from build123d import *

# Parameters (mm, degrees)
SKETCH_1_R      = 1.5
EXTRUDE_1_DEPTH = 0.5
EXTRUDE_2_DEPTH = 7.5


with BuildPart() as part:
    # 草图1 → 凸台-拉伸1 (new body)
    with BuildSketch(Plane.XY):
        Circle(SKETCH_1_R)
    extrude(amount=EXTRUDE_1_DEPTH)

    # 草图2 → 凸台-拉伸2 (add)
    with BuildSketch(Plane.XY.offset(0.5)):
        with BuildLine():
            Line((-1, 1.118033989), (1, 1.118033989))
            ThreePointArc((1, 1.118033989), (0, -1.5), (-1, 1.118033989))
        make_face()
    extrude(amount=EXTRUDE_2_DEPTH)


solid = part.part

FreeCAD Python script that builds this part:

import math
import FreeCAD as App
import Part
import Sketcher

V = App.Vector
Q = App.Units.Quantity

doc = App.newDocument("Part")
body = doc.addObject("PartDesign::Body", "Body")

# Sketch on XY plane
sketch1 = doc.addObject("Sketcher::SketchObject", "Sketch")
body.addObject(sketch1)
sketch1.AttachmentSupport = (doc.XY_Plane, [""])
sketch1.MapMode = "FlatFace"
sketch1.addGeometry(Part.Circle(V(0, 0, 0), V(0, 0, 1), 1.5), False)
sketch1.addConstraint([
    Sketcher.Constraint("Coincident", 0, 3, -1, 1),
    Sketcher.Constraint("Diameter", 0, Q("3 mm")),
])
pad1 = doc.addObject("PartDesign::Pad", "Pad")
body.addObject(pad1)
pad1.Profile = sketch1
pad1.Length = 0.5

# Sketch on XY plane
sketch2 = doc.addObject("Sketcher::SketchObject", "Sketch001")
body.addObject(sketch2)
sketch2.AttachmentSupport = (doc.XY_Plane, [""])
sketch2.MapMode = "FlatFace"
sketch2.AttachmentOffset = App.Placement(V(0, 0, 0.5), App.Rotation())
sketch2.addGeometry([
    Part.LineSegment(V(1, 1.118034, 0), V(-1, 1.118034, 0)),
    Part.ArcOfCircle(Part.Circle(V(0, 0, 0), V(0, 0, 1), 1.5), math.radians(131.810315), math.radians(408.189685)),
], False)
sketch2.addConstraint([
    Sketcher.Constraint("Coincident", 0, 1, 1, 2),
    Sketcher.Constraint("Coincident", 1, 1, 0, 2),
    Sketcher.Constraint("Horizontal", 0),
    Sketcher.Constraint("Coincident", 1, 3, -1, 1),
    Sketcher.Constraint("Radius", 1, Q("1.5 mm")),
    Sketcher.Constraint("DistanceX", 0, 2, 0, 1, Q("2 mm")),
])
pad2 = doc.addObject("PartDesign::Pad", "Pad001")
body.addObject(pad2)
pad2.Profile = sketch2
pad2.Length = 7.5

doc.recompute()
